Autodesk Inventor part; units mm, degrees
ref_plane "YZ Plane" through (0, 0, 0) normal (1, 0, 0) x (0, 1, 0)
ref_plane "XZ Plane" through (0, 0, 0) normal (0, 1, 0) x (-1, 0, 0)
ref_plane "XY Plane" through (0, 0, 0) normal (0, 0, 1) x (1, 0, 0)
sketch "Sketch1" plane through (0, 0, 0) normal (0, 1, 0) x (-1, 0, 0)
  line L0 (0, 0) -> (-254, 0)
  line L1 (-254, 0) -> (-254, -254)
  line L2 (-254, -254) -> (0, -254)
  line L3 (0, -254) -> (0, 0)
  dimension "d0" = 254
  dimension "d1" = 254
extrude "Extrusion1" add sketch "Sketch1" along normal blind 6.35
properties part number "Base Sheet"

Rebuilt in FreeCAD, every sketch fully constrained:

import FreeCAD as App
import Part
import Sketcher
Q = App.Units.Quantity

doc = App.newDocument("Part")
body = doc.addObject("PartDesign::Body", "Body")

# Sketch on XZ plane
sketch1 = body.newObject("Sketcher::SketchObject", "Sketch")
sketch1.AttachmentSupport = (doc.getObject("XZ_Plane"), [""])
sketch1.MapMode = "FlatFace"
sketch1.addGeometry([
    Part.LineSegment(App.Vector(0, -254, 0), App.Vector(0, 0, 0)),
    Part.LineSegment(App.Vector(0, 0, 0), App.Vector(254, 0, 0)),
    Part.LineSegment(App.Vector(254, 0, 0), App.Vector(254, -254, 0)),
    Part.LineSegment(App.Vector(254, -254, 0), App.Vector(0, -254, 0)),
], False)
sketch1.addConstraint([
    Sketcher.Constraint("Coincident", 0, 2, 1, 1),
    Sketcher.Constraint("Coincident", 1, 2, 2, 1),
    Sketcher.Constraint("Coincident", 2, 2, 3, 1),
    Sketcher.Constraint("Coincident", 3, 2, 0, 1),
    Sketcher.Constraint("Vertical", 0),
    Sketcher.Constraint("Horizontal", 1),
    Sketcher.Constraint("Vertical", 2),
    Sketcher.Constraint("Horizontal", 3),
    Sketcher.Constraint("Coincident", 0, 2, -1, 1),
    Sketcher.Constraint("Equal", 3, 0),
    Sketcher.Constraint("DistanceX", 1, 1, 1, 2, Q("10 in")),
])
pad1 = body.newObject("PartDesign::Pad", "Pad")
pad1.Profile = sketch1
pad1.Length = Q("0.25 in")
pad1.Reversed = True

doc.recompute()
